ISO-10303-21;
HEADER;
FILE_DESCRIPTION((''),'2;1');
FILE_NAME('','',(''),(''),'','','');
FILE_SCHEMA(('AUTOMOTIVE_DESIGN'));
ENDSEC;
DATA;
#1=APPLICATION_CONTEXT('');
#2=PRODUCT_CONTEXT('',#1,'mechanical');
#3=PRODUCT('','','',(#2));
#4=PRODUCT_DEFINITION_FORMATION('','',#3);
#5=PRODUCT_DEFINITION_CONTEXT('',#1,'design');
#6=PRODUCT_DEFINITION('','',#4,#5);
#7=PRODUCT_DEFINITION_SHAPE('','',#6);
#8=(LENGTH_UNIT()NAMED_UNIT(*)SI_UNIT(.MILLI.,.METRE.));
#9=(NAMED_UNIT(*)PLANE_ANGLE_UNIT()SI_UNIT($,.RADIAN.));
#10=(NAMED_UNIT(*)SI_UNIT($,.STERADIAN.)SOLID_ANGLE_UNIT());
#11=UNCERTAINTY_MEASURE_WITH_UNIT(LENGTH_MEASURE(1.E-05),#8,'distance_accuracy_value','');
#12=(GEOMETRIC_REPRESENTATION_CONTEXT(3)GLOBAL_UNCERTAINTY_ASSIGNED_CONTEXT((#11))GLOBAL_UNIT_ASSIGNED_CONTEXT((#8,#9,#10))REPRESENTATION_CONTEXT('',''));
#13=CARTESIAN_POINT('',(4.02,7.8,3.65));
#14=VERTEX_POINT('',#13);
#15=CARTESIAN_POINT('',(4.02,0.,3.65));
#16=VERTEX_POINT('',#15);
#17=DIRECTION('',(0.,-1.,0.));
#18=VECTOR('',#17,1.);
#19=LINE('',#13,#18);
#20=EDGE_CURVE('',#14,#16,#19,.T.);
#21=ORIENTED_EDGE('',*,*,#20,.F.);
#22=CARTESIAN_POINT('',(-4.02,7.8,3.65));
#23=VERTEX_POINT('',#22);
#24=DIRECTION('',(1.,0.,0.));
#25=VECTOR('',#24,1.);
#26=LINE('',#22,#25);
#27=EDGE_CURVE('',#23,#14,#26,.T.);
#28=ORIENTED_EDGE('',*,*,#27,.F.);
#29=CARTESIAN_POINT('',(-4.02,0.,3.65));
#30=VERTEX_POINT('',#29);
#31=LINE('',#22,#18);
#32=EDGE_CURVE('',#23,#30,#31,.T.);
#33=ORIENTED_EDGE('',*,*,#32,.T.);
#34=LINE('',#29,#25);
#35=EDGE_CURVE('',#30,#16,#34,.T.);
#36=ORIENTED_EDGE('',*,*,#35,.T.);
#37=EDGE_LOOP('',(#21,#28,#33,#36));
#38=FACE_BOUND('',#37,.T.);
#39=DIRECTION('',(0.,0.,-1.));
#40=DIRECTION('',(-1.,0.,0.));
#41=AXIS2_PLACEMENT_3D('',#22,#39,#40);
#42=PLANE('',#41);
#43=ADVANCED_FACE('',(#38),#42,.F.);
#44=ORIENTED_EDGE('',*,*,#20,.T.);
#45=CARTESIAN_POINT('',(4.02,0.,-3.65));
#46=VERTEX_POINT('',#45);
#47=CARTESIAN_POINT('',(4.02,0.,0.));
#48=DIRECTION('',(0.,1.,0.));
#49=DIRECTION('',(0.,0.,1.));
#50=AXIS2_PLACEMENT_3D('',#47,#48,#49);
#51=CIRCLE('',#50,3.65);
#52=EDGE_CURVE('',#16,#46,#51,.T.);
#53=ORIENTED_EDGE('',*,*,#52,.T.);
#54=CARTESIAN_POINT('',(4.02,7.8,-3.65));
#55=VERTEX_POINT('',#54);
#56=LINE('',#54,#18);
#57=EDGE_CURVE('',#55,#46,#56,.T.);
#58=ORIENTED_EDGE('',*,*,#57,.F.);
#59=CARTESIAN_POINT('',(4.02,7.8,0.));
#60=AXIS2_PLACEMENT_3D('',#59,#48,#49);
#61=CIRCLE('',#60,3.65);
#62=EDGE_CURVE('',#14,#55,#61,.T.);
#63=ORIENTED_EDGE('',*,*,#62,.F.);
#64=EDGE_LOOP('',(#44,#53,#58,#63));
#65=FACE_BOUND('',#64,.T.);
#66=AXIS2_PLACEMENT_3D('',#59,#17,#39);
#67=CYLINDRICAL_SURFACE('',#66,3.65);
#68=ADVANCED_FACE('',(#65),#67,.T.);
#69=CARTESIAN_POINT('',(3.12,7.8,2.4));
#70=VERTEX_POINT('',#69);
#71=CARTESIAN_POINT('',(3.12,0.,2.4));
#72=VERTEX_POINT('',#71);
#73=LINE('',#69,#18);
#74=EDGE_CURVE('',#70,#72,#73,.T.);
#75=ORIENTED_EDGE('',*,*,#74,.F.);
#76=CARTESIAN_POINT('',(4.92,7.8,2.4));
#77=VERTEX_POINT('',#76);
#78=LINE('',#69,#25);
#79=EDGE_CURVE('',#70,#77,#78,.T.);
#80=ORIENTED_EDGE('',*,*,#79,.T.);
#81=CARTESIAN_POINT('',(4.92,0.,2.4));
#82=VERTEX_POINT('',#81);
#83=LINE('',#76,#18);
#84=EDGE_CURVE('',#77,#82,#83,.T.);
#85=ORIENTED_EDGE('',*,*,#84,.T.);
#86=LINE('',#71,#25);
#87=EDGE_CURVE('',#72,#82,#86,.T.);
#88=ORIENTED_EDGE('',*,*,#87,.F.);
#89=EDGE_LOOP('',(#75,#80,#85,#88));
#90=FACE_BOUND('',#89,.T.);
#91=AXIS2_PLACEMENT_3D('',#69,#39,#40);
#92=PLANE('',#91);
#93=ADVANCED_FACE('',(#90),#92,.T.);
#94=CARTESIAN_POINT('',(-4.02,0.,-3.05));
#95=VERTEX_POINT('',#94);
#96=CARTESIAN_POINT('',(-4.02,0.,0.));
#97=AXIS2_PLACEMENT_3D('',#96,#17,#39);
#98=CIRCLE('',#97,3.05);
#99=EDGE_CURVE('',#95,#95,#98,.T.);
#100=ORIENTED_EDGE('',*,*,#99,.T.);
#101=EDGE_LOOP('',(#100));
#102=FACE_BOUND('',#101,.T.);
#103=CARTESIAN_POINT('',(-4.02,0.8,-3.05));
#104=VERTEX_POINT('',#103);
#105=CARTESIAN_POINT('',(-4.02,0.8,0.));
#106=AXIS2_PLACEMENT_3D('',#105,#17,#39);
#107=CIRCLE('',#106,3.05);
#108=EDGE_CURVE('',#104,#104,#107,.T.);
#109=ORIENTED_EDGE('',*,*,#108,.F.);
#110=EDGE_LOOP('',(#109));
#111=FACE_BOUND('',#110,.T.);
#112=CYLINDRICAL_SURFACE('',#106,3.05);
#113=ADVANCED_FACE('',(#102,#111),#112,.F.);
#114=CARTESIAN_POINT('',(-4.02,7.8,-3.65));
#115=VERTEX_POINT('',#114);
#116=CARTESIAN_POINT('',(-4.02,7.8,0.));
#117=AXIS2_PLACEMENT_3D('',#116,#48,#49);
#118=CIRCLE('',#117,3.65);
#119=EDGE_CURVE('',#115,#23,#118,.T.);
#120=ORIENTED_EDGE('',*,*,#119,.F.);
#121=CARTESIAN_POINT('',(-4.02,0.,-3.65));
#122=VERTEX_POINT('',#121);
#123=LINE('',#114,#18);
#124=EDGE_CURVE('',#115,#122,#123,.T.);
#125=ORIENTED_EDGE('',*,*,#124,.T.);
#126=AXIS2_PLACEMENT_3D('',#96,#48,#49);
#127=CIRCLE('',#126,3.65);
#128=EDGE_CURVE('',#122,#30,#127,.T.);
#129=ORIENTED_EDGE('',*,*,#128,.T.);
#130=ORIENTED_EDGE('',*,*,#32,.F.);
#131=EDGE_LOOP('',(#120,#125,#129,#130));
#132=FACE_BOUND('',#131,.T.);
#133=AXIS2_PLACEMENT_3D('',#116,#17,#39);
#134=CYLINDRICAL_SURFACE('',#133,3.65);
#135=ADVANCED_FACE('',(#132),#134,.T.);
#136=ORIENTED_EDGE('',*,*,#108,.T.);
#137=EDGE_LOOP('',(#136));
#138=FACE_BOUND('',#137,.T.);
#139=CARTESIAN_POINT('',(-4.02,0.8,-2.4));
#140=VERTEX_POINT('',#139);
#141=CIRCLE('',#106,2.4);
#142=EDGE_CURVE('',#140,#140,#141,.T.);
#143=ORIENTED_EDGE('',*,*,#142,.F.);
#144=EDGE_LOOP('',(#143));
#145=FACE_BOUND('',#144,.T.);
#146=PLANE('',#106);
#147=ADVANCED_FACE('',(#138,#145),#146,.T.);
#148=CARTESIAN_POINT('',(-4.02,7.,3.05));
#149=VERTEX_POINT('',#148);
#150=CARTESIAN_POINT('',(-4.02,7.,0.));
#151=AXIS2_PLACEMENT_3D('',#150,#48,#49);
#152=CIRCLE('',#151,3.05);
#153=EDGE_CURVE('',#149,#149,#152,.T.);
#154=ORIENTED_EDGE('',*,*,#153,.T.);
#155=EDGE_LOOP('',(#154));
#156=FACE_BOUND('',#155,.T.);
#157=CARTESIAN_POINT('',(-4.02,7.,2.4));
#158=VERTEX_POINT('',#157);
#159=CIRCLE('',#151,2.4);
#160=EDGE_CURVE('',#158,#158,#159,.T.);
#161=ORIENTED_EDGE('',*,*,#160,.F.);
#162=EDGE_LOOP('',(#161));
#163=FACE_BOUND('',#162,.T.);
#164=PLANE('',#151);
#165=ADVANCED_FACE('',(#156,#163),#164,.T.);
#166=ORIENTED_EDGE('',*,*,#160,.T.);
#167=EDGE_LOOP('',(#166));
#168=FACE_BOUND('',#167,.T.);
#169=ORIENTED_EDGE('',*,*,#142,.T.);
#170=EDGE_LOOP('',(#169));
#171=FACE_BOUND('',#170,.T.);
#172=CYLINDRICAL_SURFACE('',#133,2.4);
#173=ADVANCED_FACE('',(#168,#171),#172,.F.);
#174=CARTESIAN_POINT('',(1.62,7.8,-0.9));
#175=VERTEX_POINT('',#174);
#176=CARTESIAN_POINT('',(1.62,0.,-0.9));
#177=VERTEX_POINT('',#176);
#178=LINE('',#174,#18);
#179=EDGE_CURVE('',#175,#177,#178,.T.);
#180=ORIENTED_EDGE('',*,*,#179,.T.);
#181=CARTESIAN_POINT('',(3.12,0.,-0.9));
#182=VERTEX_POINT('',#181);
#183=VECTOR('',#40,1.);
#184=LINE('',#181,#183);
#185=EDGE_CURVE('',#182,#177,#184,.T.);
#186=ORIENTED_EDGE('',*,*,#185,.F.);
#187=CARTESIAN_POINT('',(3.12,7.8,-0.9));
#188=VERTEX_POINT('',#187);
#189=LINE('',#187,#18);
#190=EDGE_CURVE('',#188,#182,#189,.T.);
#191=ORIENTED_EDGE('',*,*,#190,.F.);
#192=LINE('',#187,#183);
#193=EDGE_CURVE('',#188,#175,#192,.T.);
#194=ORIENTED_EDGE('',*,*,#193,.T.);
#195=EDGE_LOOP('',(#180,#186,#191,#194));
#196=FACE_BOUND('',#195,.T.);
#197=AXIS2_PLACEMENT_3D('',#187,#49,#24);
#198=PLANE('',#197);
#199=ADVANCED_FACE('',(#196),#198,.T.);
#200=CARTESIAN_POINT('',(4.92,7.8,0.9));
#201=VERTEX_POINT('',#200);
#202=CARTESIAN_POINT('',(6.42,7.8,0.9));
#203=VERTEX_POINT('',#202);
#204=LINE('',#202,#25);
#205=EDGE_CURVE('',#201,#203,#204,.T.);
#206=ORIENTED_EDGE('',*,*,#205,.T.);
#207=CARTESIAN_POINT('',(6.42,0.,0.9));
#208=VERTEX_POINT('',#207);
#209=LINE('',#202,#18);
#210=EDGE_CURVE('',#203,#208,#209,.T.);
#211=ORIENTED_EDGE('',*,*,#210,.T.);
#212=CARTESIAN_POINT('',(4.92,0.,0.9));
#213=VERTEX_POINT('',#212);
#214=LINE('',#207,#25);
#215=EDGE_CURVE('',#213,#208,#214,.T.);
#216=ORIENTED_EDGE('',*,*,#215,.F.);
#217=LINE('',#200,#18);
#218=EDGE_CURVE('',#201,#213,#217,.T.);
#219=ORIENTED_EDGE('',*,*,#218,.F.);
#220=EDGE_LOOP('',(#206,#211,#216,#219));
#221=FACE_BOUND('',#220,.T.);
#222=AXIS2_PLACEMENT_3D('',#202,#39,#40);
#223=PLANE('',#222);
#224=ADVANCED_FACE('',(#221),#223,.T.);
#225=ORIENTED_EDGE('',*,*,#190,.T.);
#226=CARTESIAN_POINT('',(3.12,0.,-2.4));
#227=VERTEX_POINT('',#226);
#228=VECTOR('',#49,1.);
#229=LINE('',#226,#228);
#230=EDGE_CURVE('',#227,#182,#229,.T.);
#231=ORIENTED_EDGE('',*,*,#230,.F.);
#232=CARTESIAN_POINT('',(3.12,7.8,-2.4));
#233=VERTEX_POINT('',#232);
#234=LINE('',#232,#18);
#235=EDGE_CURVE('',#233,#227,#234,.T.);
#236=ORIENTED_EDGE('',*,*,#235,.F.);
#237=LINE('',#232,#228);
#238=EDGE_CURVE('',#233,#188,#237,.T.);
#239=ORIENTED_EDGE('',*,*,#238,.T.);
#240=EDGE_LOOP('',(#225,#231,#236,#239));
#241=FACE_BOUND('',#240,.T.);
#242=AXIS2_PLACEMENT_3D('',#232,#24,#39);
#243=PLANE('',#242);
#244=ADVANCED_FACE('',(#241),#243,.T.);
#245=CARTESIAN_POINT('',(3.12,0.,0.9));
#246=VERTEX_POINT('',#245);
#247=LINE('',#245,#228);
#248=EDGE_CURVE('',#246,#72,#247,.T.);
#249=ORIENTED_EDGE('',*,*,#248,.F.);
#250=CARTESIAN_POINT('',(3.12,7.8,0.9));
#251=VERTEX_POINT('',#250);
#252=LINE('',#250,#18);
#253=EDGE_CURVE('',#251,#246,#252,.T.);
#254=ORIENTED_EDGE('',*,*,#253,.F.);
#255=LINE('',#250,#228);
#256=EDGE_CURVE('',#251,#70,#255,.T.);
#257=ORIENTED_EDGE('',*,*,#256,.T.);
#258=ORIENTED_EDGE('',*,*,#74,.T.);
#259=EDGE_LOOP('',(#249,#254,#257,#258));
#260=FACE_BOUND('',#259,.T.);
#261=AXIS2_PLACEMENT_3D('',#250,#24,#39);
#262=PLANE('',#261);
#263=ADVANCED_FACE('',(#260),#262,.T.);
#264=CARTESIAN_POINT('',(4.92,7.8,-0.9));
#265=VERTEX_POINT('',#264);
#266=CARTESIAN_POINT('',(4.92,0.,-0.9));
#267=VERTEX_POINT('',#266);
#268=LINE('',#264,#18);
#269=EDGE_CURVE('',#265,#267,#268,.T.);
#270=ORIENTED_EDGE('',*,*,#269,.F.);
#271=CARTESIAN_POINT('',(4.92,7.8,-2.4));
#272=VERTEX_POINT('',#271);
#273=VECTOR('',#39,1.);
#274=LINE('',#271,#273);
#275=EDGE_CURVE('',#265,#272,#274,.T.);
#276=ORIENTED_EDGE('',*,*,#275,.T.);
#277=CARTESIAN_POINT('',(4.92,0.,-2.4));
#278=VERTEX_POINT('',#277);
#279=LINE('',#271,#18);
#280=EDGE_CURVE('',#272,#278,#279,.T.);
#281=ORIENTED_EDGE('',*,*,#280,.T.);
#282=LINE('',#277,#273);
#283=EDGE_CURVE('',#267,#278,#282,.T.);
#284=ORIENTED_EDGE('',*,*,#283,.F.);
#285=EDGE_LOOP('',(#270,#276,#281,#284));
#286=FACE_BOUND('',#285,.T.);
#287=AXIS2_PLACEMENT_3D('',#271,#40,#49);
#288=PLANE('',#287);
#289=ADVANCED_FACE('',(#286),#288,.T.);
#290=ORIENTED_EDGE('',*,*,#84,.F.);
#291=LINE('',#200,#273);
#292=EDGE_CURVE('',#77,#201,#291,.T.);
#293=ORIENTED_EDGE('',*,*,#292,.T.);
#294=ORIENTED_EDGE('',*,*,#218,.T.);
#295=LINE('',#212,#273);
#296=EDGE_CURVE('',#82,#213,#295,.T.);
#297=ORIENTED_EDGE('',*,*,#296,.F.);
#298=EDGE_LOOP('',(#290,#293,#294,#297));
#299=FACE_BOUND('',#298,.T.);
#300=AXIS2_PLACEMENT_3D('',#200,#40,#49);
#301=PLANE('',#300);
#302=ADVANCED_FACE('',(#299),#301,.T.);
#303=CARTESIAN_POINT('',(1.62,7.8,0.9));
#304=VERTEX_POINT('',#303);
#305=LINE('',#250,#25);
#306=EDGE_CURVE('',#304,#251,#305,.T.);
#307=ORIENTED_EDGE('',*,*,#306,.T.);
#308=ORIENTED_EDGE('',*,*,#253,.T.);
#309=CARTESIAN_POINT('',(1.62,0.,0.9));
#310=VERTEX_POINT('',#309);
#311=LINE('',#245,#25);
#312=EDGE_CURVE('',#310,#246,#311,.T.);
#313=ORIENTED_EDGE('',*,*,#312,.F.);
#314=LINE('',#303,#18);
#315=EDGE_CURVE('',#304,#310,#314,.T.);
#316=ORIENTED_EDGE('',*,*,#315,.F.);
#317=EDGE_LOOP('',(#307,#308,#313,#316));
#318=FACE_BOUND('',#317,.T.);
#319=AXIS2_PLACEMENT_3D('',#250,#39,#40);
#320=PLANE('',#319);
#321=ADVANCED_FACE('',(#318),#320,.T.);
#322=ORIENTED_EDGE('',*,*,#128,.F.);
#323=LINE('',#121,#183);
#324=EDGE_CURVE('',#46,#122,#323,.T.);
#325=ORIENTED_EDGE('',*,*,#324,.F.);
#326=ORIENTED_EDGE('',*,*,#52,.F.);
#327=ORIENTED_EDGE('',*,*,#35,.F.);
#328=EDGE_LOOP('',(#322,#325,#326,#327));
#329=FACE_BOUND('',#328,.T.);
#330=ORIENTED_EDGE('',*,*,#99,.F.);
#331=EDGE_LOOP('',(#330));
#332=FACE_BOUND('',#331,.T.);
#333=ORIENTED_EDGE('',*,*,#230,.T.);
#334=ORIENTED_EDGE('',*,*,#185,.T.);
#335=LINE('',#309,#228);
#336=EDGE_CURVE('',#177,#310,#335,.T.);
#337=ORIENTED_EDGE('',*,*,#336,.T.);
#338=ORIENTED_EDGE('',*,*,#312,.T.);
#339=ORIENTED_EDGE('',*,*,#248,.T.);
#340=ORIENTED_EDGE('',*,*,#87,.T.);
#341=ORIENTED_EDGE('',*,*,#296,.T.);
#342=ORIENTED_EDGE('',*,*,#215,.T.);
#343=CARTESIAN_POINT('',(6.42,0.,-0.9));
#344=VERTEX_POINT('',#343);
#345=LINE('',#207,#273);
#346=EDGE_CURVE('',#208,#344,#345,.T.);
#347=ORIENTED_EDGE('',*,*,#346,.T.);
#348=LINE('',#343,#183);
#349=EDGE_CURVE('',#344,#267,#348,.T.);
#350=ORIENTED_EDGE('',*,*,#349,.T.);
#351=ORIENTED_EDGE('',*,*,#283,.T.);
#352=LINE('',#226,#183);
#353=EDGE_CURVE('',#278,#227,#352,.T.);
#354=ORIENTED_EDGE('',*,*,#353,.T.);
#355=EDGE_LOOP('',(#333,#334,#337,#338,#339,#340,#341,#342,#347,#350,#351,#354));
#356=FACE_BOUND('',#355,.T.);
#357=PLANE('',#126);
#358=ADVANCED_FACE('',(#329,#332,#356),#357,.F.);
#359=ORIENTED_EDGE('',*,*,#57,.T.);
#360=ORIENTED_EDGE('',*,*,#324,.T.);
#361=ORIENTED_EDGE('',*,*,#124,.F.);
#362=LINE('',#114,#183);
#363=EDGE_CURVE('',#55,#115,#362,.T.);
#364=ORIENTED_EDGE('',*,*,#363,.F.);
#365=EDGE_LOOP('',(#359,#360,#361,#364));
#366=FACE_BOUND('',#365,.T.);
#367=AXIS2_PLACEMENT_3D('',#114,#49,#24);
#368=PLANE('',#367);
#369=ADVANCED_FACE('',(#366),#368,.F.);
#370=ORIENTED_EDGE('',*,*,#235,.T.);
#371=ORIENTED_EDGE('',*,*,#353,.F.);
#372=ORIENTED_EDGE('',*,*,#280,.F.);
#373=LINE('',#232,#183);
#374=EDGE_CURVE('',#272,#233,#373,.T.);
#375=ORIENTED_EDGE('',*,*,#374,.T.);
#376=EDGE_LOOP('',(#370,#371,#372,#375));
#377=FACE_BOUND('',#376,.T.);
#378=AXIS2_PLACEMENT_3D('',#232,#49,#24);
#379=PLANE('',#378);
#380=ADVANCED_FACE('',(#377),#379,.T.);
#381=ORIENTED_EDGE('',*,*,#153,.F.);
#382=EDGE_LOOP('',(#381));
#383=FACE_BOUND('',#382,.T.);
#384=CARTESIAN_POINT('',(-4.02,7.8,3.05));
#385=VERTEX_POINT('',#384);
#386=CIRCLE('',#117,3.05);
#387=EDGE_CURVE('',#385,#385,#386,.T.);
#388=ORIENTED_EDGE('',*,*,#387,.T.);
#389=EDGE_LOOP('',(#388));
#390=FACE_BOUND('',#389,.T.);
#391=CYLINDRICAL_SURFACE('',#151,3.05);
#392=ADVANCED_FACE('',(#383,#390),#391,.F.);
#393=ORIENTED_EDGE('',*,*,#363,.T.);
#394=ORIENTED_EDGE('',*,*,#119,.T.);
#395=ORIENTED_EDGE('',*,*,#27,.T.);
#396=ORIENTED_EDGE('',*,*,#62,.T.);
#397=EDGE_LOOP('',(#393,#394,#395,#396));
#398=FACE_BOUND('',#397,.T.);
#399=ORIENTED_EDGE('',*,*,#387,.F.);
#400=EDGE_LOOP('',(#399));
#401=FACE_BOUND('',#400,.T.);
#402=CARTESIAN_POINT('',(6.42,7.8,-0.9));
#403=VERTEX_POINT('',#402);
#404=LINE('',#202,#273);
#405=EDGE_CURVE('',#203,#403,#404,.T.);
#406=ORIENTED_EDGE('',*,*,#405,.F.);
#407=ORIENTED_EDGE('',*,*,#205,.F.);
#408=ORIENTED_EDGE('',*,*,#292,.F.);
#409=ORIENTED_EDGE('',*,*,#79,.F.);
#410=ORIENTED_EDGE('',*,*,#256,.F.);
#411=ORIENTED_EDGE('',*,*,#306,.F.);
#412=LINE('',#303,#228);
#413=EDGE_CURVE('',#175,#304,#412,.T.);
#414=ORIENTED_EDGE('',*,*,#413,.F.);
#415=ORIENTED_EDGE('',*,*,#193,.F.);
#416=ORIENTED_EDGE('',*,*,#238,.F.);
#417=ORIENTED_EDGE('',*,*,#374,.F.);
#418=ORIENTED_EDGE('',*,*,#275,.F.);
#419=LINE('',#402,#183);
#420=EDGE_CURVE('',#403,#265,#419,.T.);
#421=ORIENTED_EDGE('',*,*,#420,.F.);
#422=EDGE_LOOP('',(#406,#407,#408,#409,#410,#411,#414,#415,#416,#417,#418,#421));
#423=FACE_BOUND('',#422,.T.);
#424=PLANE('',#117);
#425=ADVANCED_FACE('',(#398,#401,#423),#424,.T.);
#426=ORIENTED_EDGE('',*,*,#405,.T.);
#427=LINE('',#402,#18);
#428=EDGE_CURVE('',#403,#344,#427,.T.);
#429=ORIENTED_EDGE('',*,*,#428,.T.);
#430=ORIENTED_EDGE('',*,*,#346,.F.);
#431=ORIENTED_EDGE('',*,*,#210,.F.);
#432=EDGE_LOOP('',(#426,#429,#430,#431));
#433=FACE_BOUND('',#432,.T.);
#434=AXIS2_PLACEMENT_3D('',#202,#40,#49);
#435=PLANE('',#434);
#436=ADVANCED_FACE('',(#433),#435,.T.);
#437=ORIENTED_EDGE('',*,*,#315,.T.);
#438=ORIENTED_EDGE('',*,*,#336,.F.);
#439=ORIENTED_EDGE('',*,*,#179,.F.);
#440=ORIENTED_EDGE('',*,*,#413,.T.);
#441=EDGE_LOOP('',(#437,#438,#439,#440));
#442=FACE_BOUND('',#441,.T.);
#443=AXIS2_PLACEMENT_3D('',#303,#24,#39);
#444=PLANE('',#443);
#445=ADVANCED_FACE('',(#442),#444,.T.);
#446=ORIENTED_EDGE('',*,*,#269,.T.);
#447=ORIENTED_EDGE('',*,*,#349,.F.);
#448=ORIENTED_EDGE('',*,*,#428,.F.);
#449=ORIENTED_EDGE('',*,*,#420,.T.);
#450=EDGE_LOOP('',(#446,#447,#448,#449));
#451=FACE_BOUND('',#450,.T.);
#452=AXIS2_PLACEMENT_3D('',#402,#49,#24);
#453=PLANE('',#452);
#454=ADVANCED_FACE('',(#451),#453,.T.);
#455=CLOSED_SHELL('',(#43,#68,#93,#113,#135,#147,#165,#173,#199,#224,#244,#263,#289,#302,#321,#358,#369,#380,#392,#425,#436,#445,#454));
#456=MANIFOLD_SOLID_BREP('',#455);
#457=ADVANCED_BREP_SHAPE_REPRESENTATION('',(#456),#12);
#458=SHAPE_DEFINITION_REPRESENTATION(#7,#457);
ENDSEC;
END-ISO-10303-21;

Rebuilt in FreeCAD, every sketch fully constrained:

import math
import FreeCAD as App
import Part
import Sketcher
Q = App.Units.Quantity


def add_polygon(sketch, points):
    """Adds a closed chain of lines whose ends are joined by coincident constraints."""
    first, n = sketch.GeometryCount, len(points)
    for a, b in zip(points, points[1:] + points[:1]):
        sketch.addGeometry(Part.LineSegment(App.Vector(*a, 0), App.Vector(*b, 0)), False)
    for i in range(n):
        sketch.addConstraint(Sketcher.Constraint("Coincident", first + i, 2, first + (i + 1) % n, 1))

doc = App.newDocument("Part")
body = doc.addObject("PartDesign::Body", "Body")

sketch1 = body.newObject("Sketcher::SketchObject", "Sketch")
sketch1.AttachmentSupport = (doc.getObject("XZ_Plane"), [""])
sketch1.MapMode = "FlatFace"
sketch1.addGeometry(Part.LineSegment(App.Vector(4.02, -3.65, 0), App.Vector(-4.02, -3.65, 0)), False)
sketch1.addGeometry(Part.ArcOfCircle(Part.Circle(App.Vector(-4.02, 0, 0), App.Vector(0, 0, 1), 3.65), math.radians(90), math.radians(270)), False)
sketch1.addGeometry(Part.LineSegment(App.Vector(-4.02, 3.65, 0), App.Vector(4.02, 3.65, 0)), False)
sketch1.addGeometry(Part.ArcOfCircle(Part.Circle(App.Vector(4.02, 0, 0), App.Vector(0, 0, 1), 3.65), math.radians(-90), math.radians(90)), False)
add_polygon(sketch1, [(3.12, -2.4), (4.92, -2.4), (4.92, -0.9), (6.42, -0.9), (6.42, 0.9), (4.92, 0.9), (4.92, 2.4), (3.12, 2.4), (3.12, 0.9), (1.62, 0.9), (1.62, -0.9), (3.12, -0.9)])
sketch1.addGeometry(Part.Circle(App.Vector(-4.02, 0, 0), App.Vector(0, 0, 1), 2.4), False)
sketch1.addConstraint([
    Sketcher.Constraint("Tangent", 0, 2, 1, 2),
    Sketcher.Constraint("Tangent", 1, 1, 2, 1),
    Sketcher.Constraint("Tangent", 2, 2, 3, 2),
    Sketcher.Constraint("Tangent", 3, 1, 0, 1),
    Sketcher.Constraint("Horizontal", 0),
    Sketcher.Constraint("Horizontal", 2),
    Sketcher.Constraint("Horizontal", 4),
    Sketcher.Constraint("Vertical", 5),
    Sketcher.Constraint("Horizontal", 6),
    Sketcher.Constraint("Vertical", 7),
    Sketcher.Constraint("Horizontal", 8),
    Sketcher.Constraint("Vertical", 9),
    Sketcher.Constraint("Horizontal", 10),
    Sketcher.Constraint("Vertical", 11),
    Sketcher.Constraint("Horizontal", 12),
    Sketcher.Constraint("Vertical", 13),
    Sketcher.Constraint("Horizontal", 14),
    Sketcher.Constraint("Vertical", 15),
    Sketcher.Constraint("Coincident", 16, 3, 1, 3),
    Sketcher.Constraint("Symmetric", 1, 3, 3, 3, -1, 1),
    Sketcher.Constraint("Symmetric", 5, 2, 8, 2, -1),
    Sketcher.Constraint("Symmetric", 11, 2, 14, 2, -1),
    Sketcher.Constraint("Horizontal", 8, 2, 11, 2),
    Sketcher.Constraint("Equal", 8, 12),
    Sketcher.Constraint("Equal", 14, 5),
    Sketcher.Constraint("Equal", 10, 7),
    Sketcher.Constraint("Equal", 5, 9),
    Sketcher.Constraint("Diameter", 16, Q("4.8 mm")),
    Sketcher.Constraint("Radius", 1, Q("3.65 mm")),
    Sketcher.Constraint("DistanceX", 4, 1, 4, 2, Q("1.8 mm")),
    Sketcher.Constraint("DistanceX", 6, 1, 6, 2, Q("1.5 mm")),
    Sketcher.Constraint("DistanceX", 0, 2, 0, 1, Q("8.04 mm")),
    Sketcher.Constraint("DistanceX", 3, 1, 4, 2, Q("0.9 mm")),
])
pad1 = body.newObject("PartDesign::Pad", "Pad")
pad1.Profile = sketch1
pad1.Length = 7.8
pad1.Reversed = True

sketch2 = body.newObject("Sketcher::SketchObject", "Sketch001")
sketch2.AttachmentSupport = (doc.getObject("XZ_Plane"), [""])
sketch2.MapMode = "FlatFace"
sketch2.AttachmentOffset = App.Placement(App.Vector(0, 0, -7.8), App.Rotation())
sketch2.addGeometry(Part.Circle(App.Vector(-4.02, 0, 0), App.Vector(0, 0, 1), 3.05), False)
sketch2.addConstraint([
    Sketcher.Constraint("PointOnObject", 0, 3, -1),
    Sketcher.Constraint("Diameter", 0, Q("6.1 mm")),
    Sketcher.Constraint("DistanceX", 0, 3, -1, 1, Q("4.02 mm")),
])
pocket1 = body.newObject("PartDesign::Pocket", "Pocket")
pocket1.Profile = sketch2
pocket1.Length = 0.8
pocket1.Reversed = True

sketch3 = body.newObject("Sketcher::SketchObject", "Sketch002")
sketch3.AttachmentSupport = (doc.getObject("XZ_Plane"), [""])
sketch3.MapMode = "FlatFace"
sketch3.addGeometry(Part.Circle(App.Vector(-4.02, 0, 0), App.Vector(0, 0, 1), 3.05), False)
sketch3.addConstraint([
    Sketcher.Constraint("PointOnObject", 0, 3, -1),
    Sketcher.Constraint("Diameter", 0, Q("6.1 mm")),
    Sketcher.Constraint("DistanceX", 0, 3, -1, 1, Q("4.02 mm")),
])
pocket2 = body.newObject("PartDesign::Pocket", "Pocket001")
pocket2.Profile = sketch3
pocket2.Length = 0.8

doc.recompute()
